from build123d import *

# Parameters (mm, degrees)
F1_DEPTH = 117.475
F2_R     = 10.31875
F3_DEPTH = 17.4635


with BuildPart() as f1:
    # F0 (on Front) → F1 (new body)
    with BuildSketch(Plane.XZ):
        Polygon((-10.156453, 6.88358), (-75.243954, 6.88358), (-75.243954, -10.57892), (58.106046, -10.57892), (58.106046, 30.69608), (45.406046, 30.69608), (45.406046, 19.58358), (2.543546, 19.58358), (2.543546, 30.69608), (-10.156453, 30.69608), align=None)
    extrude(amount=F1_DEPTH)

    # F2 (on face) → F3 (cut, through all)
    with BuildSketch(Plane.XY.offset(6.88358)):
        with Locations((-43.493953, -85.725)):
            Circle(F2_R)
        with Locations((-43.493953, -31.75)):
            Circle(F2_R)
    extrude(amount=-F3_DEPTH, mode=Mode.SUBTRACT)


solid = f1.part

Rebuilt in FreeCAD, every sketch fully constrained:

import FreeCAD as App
import Part
import Sketcher
from FreeCAD import Vector
Q = App.Units.Quantity

doc = App.newDocument("Part")
body = doc.addObject("PartDesign::Body", "Body")

sketch1 = doc.addObject("Sketcher::SketchObject", "Sketch")
body.addObject(sketch1)
sketch1.AttachmentSupport = (doc.XZ_Plane, [""])
sketch1.MapMode = "FlatFace"
sketch1.addGeometry([
    Part.LineSegment(Vector(-10, 7, 0), Vector(-75, 7, 0)),
    Part.LineSegment(Vector(-75, 7, 0), Vector(-75, -11, 0)),
    Part.LineSegment(Vector(-75, -11, 0), Vector(58, -11, 0)),
    Part.LineSegment(Vector(58, -11, 0), Vector(58, 31, 0)),
    Part.LineSegment(Vector(58, 31, 0), Vector(45, 31, 0)),
    Part.LineSegment(Vector(45, 31, 0), Vector(45, 20, 0)),
    Part.LineSegment(Vector(45, 20, 0), Vector(3, 20, 0)),
    Part.LineSegment(Vector(3, 20, 0), Vector(3, 31, 0)),
    Part.LineSegment(Vector(3, 31, 0), Vector(-10, 31, 0)),
    Part.LineSegment(Vector(-10, 31, 0), Vector(-10, 7, 0)),
], False)
sketch1.addConstraint([
    Sketcher.Constraint("Coincident", 0, 2, 1, 1),
    Sketcher.Constraint("Coincident", 1, 2, 2, 1),
    Sketcher.Constraint("Coincident", 2, 2, 3, 1),
    Sketcher.Constraint("Coincident", 3, 2, 4, 1),
    Sketcher.Constraint("Coincident", 4, 2, 5, 1),
    Sketcher.Constraint("Coincident", 5, 2, 6, 1),
    Sketcher.Constraint("Coincident", 6, 2, 7, 1),
    Sketcher.Constraint("Coincident", 7, 2, 8, 1),
    Sketcher.Constraint("Coincident", 8, 2, 9, 1),
    Sketcher.Constraint("Coincident", 9, 2, 0, 1),
    Sketcher.Constraint("Horizontal", 0),
    Sketcher.Constraint("Vertical", 1),
    Sketcher.Constraint("Horizontal", 2),
    Sketcher.Constraint("Vertical", 3),
    Sketcher.Constraint("Horizontal", 4),
    Sketcher.Constraint("Vertical", 5),
    Sketcher.Constraint("Horizontal", 6),
    Sketcher.Constraint("Vertical", 7),
    Sketcher.Constraint("Horizontal", 8),
    Sketcher.Constraint("Vertical", 9),
    Sketcher.Constraint("Horizontal", 4, 2, 7, 2),
    Sketcher.Constraint("Equal", 4, 8),
    Sketcher.Constraint("DistanceX", 4, 2, 4, 1, Q("0.5 in")),
    Sketcher.Constraint("DistanceX", 2, 1, 2, 2, Q("5.25 in")),
    Sketcher.Constraint("DistanceY", 0, 2, 5, 2, Q("0.5 in")),
    Sketcher.Constraint("DistanceX", 0, 2, 0, 1, Q("2.5625 in")),
    Sketcher.Constraint("DistanceY", 1, 2, 1, 1, Q("0.6875 in")),
    Sketcher.Constraint("DistanceY", 3, 1, 3, 2, Q("1.625 in")),
    Sketcher.Constraint("DistanceY", -1, 1, 0, 2, 6.88358),
    Sketcher.Constraint("DistanceX", 0, 2, -1, 1, 75.243954),
])
pad1 = doc.addObject("PartDesign::Pad", "Pad")
body.addObject(pad1)
pad1.Profile = sketch1
pad1.Length = Q("4.625 in")

sketch2 = doc.addObject("Sketcher::SketchObject", "Sketch001")
body.addObject(sketch2)
sketch2.AttachmentSupport = (doc.XY_Plane, [""])
sketch2.MapMode = "FlatFace"
sketch2.AttachmentOffset = App.Placement(Vector(0, 0, 6.88358), App.Rotation())
sketch2.addGeometry([
    Part.Circle(Vector(-43, -86, 0), Vector(0, 0, 1), 10),
    Part.Circle(Vector(-43, -32, 0), Vector(0, 0, 1), 10),
], False)
sketch2.addConstraint([
    Sketcher.Constraint("Equal", 0, 1),
    Sketcher.Constraint("Vertical", 0, 3, 1, 3),
    Sketcher.Constraint("Diameter", 0, Q("0.8125 in")),
    Sketcher.Constraint("DistanceY", 1, 3, -1, 1, Q("1.25 in")),
    Sketcher.Constraint("DistanceY", 0, 3, -1, 1, Q("3.375 in")),
    Sketcher.Constraint("DistanceX", 0, 3, -1, 1, 43.493953),
])
pocket1 = doc.addObject("PartDesign::Pocket", "Pocket")
body.addObject(pocket1)
pocket1.Profile = sketch2
pocket1.Type = "ThroughAll"

doc.recompute()
